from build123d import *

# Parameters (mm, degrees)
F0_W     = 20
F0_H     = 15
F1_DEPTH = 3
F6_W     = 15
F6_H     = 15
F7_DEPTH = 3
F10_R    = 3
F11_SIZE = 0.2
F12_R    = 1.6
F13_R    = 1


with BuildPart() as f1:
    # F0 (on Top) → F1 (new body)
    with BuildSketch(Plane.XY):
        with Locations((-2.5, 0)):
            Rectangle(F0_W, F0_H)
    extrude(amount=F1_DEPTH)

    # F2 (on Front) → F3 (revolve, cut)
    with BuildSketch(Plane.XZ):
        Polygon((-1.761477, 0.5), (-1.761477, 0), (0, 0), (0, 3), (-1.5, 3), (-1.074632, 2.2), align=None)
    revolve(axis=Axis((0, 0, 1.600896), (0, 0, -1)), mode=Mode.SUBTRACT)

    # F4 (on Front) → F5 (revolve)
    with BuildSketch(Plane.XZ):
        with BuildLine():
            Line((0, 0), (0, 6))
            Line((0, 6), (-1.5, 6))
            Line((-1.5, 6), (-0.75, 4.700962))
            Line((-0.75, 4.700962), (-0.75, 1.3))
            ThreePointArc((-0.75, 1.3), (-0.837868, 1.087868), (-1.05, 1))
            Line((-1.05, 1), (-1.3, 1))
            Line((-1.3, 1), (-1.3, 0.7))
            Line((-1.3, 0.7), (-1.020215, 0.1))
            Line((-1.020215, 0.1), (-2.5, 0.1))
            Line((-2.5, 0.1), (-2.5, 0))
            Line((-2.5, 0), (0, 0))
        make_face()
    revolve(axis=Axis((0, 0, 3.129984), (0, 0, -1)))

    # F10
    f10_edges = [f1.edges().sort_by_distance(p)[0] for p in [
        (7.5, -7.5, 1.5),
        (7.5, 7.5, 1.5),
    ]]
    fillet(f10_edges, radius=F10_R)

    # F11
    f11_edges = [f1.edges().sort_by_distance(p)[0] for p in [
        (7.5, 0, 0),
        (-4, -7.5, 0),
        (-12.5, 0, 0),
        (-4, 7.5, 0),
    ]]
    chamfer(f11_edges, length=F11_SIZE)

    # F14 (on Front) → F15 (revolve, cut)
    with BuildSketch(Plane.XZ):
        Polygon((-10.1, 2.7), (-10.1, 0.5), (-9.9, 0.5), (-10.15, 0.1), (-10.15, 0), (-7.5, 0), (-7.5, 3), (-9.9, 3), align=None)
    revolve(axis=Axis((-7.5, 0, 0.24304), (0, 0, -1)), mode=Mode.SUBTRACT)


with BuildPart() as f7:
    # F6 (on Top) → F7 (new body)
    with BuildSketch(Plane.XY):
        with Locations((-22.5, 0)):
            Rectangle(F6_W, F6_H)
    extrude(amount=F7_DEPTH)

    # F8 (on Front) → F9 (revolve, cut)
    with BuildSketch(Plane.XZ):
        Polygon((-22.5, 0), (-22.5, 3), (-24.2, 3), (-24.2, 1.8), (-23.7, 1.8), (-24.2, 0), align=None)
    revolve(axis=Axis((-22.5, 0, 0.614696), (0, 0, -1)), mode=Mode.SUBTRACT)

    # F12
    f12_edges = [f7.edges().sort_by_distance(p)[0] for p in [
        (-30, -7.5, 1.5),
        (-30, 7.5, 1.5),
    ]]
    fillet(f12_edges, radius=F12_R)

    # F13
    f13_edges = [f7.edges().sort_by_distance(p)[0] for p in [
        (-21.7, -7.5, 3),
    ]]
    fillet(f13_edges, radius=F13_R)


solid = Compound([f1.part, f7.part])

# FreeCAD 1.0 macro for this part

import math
import FreeCAD as App
import Part
import Sketcher

V = App.Vector
Q = App.Units.Quantity


def edges_at(feature, points):
    """Names of the edges that pass closest to the given points."""
    edges = feature.Shape.Edges
    near = lambda p: min(range(len(edges)), key=lambda i: edges[i].distToShape(Part.Vertex(*p))[0])
    return sorted({f"Edge{near(p) + 1}" for p in points})

doc = App.newDocument("Part")
params = doc.addObject("Spreadsheet::Sheet", "Params")
for row, (alias, value) in enumerate([
    ("sketch1_width", "20 mm"),
    ("sketch1_height", "15 mm"),
    ("pad1_length", "3 mm"),
    ("sketch2_height", "3 mm"),
    ("sketch2_width", "1.5 mm"),
    ("sketch2_height2", "0.5 mm"),
    ("groove_angle", "360 deg"),
    ("sketch3_radius", "0.3 mm"),
    ("sketch3_height", "6 mm"),
    ("sketch3_width", "1.5 mm"),
    ("sketch3_width2", "2.5 mm"),
    ("sketch3_height2", "0.3 mm"),
    ("revolution_angle", "360 deg"),
    ("fillet_radius", "3 mm"),
    ("chamfer_size", "0.2 mm"),
    ("sketch4_height", "3 mm"),
    ("sketch4_width", "0.2 mm"),
    ("sketch4_width2", "2.4 mm"),
    ("sketch4_height2", "2.2 mm"),
    ("sketch4_height3", "0.1 mm"),
    ("groove2_angle", "360 deg"),
    ("sketch5_width", "15 mm"),
    ("pad2_length", "3 mm"),
    ("sketch6_height", "3 mm"),
    ("sketch6_width", "1.7 mm"),
    ("sketch6_width2", "0.5 mm"),
    ("sketch6_height2", "1.2 mm"),
    ("groove3_angle", "360 deg"),
    ("fillet2_radius", "1.6 mm"),
    ("fillet3_radius", "1 mm"),
], start=1):
    params.set(f"A{row}", alias)
    params.set(f"B{row}", "=" + value)
    params.setAlias(f"B{row}", alias)

body = doc.addObject("PartDesign::Body", "Body")

sketch1 = body.newObject("Sketcher::SketchObject", "Sketch")
sketch1.AttachmentSupport = (doc.getObject("XY_Plane"), [""])
sketch1.MapMode = "FlatFace"
sketch1.addGeometry(Part.LineSegment(V(-12, 8, 0), V(-12, -8, 0)), False)
sketch1.addGeometry(Part.LineSegment(V(-12, -8, 0), V(8, -8, 0)), False)
sketch1.addGeometry(Part.LineSegment(V(8, -8, 0), V(8, 8, 0)), False)
sketch1.addGeometry(Part.LineSegment(V(8, 8, 0), V(-12, 8, 0)), False)
sketch1.addConstraint(Sketcher.Constraint("Coincident", 0, 2, 1, 1))
sketch1.addConstraint(Sketcher.Constraint("Coincident", 1, 2, 2, 1))
sketch1.addConstraint(Sketcher.Constraint("Coincident", 2, 2, 3, 1))
sketch1.addConstraint(Sketcher.Constraint("Coincident", 3, 2, 0, 1))
sketch1.addConstraint(Sketcher.Constraint("Vertical", 0))
sketch1.addConstraint(Sketcher.Constraint("Horizontal", 1))
sketch1.addConstraint(Sketcher.Constraint("Vertical", 2))
sketch1.addConstraint(Sketcher.Constraint("Horizontal", 3))
sketch1.addConstraint(Sketcher.Constraint("DistanceX", 1, 1, 1, 2, Q("20 mm")))
sketch1.addConstraint(Sketcher.Constraint("DistanceY", 0, 2, 0, 1, Q("15 mm")))
sketch1.addConstraint(Sketcher.Constraint("DistanceX", 0, 2, -1, 1, Q("12.5 mm")))
sketch1.addConstraint(Sketcher.Constraint("DistanceY", 0, 2, -1, 1, Q("7.5 mm")))
sketch1.setExpression("Constraints[8]", "Params.sketch1_width")
sketch1.setExpression("Constraints[9]", "Params.sketch1_height")
pad1 = body.newObject("PartDesign::Pad", "Pad")
pad1.Profile = sketch1
pad1.setExpression("Length", "Params.pad1_length")

sketch2 = body.newObject("Sketcher::SketchObject", "Sketch001")
sketch2.AttachmentSupport = (doc.getObject("XZ_Plane"), [""])
sketch2.MapMode = "FlatFace"
sketch2.addGeometry(Part.LineSegment(V(-1.8, 0.5, 0), V(-1.8, 0, 0)), False)
sketch2.addGeometry(Part.LineSegment(V(-1.8, 0, 0), V(0, 0, 0)), False)
sketch2.addGeometry(Part.LineSegment(V(0, 0, 0), V(0, 3, 0)), False)
sketch2.addGeometry(Part.LineSegment(V(0, 3, 0), V(-1.5, 3, 0)), False)
sketch2.addGeometry(Part.LineSegment(V(-1.5, 3, 0), V(-1.1, 2.2, 0)), False)
sketch2.addGeometry(Part.LineSegment(V(-1.1, 2.2, 0), V(-1.8, 0.5, 0)), False)
sketch2.addConstraint(Sketcher.Constraint("Coincident", 0, 2, 1, 1))
sketch2.addConstraint(Sketcher.Constraint("Coincident", 1, 2, 2, 1))
sketch2.addConstraint(Sketcher.Constraint("Coincident", 2, 2, 3, 1))
sketch2.addConstraint(Sketcher.Constraint("Coincident", 3, 2, 4, 1))
sketch2.addConstraint(Sketcher.Constraint("Coincident", 4, 2, 5, 1))
sketch2.addConstraint(Sketcher.Constraint("Coincident", 5, 2, 0, 1))
sketch2.addConstraint(Sketcher.Constraint("Vertical", 0))
sketch2.addConstraint(Sketcher.Constraint("Horizontal", 1))
sketch2.addConstraint(Sketcher.Constraint("Vertical", 2))
sketch2.addConstraint(Sketcher.Constraint("Horizontal", 3))
sketch2.addConstraint(Sketcher.Constraint("Coincident", 1, 2, -1, 1))
sketch2.addConstraint(Sketcher.Constraint("DistanceY", 2, 1, 2, 2, Q("3 mm")))
sketch2.addConstraint(Sketcher.Constraint("Angle", 5, Q("-112.000012 deg")))
sketch2.addConstraint(Sketcher.Constraint("DistanceX", 3, 2, 3, 1, Q("1.5 mm")))
sketch2.addConstraint(Sketcher.Constraint("DistanceY", 0, 2, 0, 1, Q("0.5 mm")))
sketch2.addConstraint(Sketcher.Constraint("DistanceY", -1, 1, 4, 2, Q("2.2 mm")))
sketch2.addConstraint(Sketcher.Constraint("DistanceX", 1, 1, 1, 2, Q("1.761477 mm")))
sketch2.setExpression("Constraints[11]", "Params.sketch2_height")
sketch2.setExpression("Constraints[13]", "Params.sketch2_width")
sketch2.setExpression("Constraints[14]", "Params.sketch2_height2")
groove = body.newObject("PartDesign::Groove", "Groove")
groove.Profile = sketch2
groove.ReferenceAxis = (sketch2, ["V_Axis"])
groove.setExpression("Angle", "Params.groove_angle")

sketch3 = body.newObject("Sketcher::SketchObject", "Sketch002")
sketch3.AttachmentSupport = (doc.getObject("XZ_Plane"), [""])
sketch3.MapMode = "FlatFace"
sketch3.addGeometry(Part.LineSegment(V(0, 0, 0), V(0, 6, 0)), False)
sketch3.addGeometry(Part.LineSegment(V(0, 6, 0), V(-1.5, 6, 0)), False)
sketch3.addGeometry(Part.LineSegment(V(-1.5, 6, 0), V(-0.75, 4.7, 0)), False)
sketch3.addGeometry(Part.LineSegment(V(-0.75, 4.7, 0), V(-0.75, 1.3, 0)), False)
sketch3.addGeometry(Part.ArcOfCircle(Part.Circle(V(-1.05, 1.3, 0), V(0, 0, 1), 0.3), math.radians(-90), math.radians(0)), False)
sketch3.addGeometry(Part.LineSegment(V(-1.05, 1, 0), V(-1.3, 1, 0)), False)
sketch3.addGeometry(Part.LineSegment(V(-1.3, 1, 0), V(-1.3, 0.7, 0)), False)
sketch3.addGeometry(Part.LineSegment(V(-1.3, 0.7, 0), V(-1.02, 0.1, 0)), False)
sketch3.addGeometry(Part.LineSegment(V(-1.02, 0.1, 0), V(-2.5, 0.1, 0)), False)
sketch3.addGeometry(Part.LineSegment(V(-2.5, 0.1, 0), V(-2.5, 0, 0)), False)
sketch3.addGeometry(Part.LineSegment(V(-2.5, 0, 0), V(0, 0, 0)), False)
sketch3.addConstraint(Sketcher.Constraint("Coincident", 0, 2, 1, 1))
sketch3.addConstraint(Sketcher.Constraint("Coincident", 1, 2, 2, 1))
sketch3.addConstraint(Sketcher.Constraint("Coincident", 2, 2, 3, 1))
sketch3.addConstraint(Sketcher.Constraint("Tangent", 3, 2, 4, 2))
sketch3.addConstraint(Sketcher.Constraint("Tangent", 4, 1, 5, 1))
sketch3.addConstraint(Sketcher.Constraint("Coincident", 5, 2, 6, 1))
sketch3.addConstraint(Sketcher.Constraint("Coincident", 6, 2, 7, 1))
sketch3.addConstraint(Sketcher.Constraint("Coincident", 7, 2, 8, 1))
sketch3.addConstraint(Sketcher.Constraint("Coincident", 8, 2, 9, 1))
sketch3.addConstraint(Sketcher.Constraint("Coincident", 9, 2, 10, 1))
sketch3.addConstraint(Sketcher.Constraint("Coincident", 10, 2, 0, 1))
sketch3.addConstraint(Sketcher.Constraint("Vertical", 0))
sketch3.addConstraint(Sketcher.Constraint("Horizontal", 1))
sketch3.addConstraint(Sketcher.Constraint("Vertical", 3))
sketch3.addConstraint(Sketcher.Constraint("Horizontal", 5))
sketch3.addConstraint(Sketcher.Constraint("Vertical", 6))
sketch3.addConstraint(Sketcher.Constraint("Horizontal", 8))
sketch3.addConstraint(Sketcher.Constraint("Vertical", 9))
sketch3.addConstraint(Sketcher.Constraint("Horizontal", 10))
sketch3.addConstraint(Sketcher.Constraint("Coincident", 10, 2, -1, 1))
sketch3.addConstraint(Sketcher.Constraint("Radius", 4, Q("0.3 mm")))
sketch3.addConstraint(Sketcher.Constraint("DistanceY", 0, 1, 0, 2, Q("6 mm")))
sketch3.addConstraint(Sketcher.Constraint("Angle", 2, Q("-59.999998 deg")))
sketch3.addConstraint(Sketcher.Constraint("DistanceX", 1, 2, 1, 1, Q("1.5 mm")))
sketch3.addConstraint(Sketcher.Constraint("DistanceX", 10, 1, 10, 2, Q("2.5 mm")))
sketch3.addConstraint(Sketcher.Constraint("DistanceY", 6, 2, 6, 1, Q("0.3 mm")))
sketch3.addConstraint(Sketcher.Constraint("DistanceY", 9, 2, 9, 1, Q("0.1 mm")))
sketch3.addConstraint(Sketcher.Constraint("DistanceY", -1, 1, 4, 1, Q("1 mm")))
sketch3.addConstraint(Sketcher.Constraint("Distance", 2, Q("1.5 mm")))
sketch3.addConstraint(Sketcher.Constraint("DistanceX", 5, 2, 5, 1, Q("0.25 mm")))
sketch3.addConstraint(Sketcher.Constraint("DistanceX", 8, 2, 8, 1, Q("1.479785 mm")))
sketch3.setExpression("Constraints[20]", "Params.sketch3_radius")
sketch3.setExpression("Constraints[21]", "Params.sketch3_height")
sketch3.setExpression("Constraints[23]", "Params.sketch3_width")
sketch3.setExpression("Constraints[24]", "Params.sketch3_width2")
sketch3.setExpression("Constraints[25]", "Params.sketch3_height2")
revolution = body.newObject("PartDesign::Revolution", "Revolution")
revolution.Profile = sketch3
revolution.ReferenceAxis = (sketch3, ["V_Axis"])
revolution.setExpression("Angle", "Params.revolution_angle")
doc.recompute()

fillet = body.newObject("PartDesign::Fillet", "Fillet")
fillet.Base = (revolution, edges_at(revolution, [(7.5, -7.5, 1.5), (7.5, 7.5, 1.5)]))
fillet.setExpression("Radius", "Params.fillet_radius")
doc.recompute()

chamfer = body.newObject("PartDesign::Chamfer", "Chamfer")
chamfer.Base = (fillet, edges_at(fillet, [
    (7.5, 0, 0),
    (-4, -7.5, 0),
    (-12.5, 0, 0),
    (-4, 7.5, 0),
]))
chamfer.setExpression("Size", "Params.chamfer_size")

sketch4 = body.newObject("Sketcher::SketchObject", "Sketch003")
sketch4.AttachmentSupport = (doc.getObject("XZ_Plane"), [""])
sketch4.MapMode = "FlatFace"
sketch4.addGeometry(Part.LineSegment(V(-10.1, 2.7, 0), V(-10.1, 0.5, 0)), False)
sketch4.addGeometry(Part.LineSegment(V(-10.1, 0.5, 0), V(-9.9, 0.5, 0)), False)
sketch4.addGeometry(Part.LineSegment(V(-9.9, 0.5, 0), V(-10.15, 0.1, 0)), False)
sketch4.addGeometry(Part.LineSegment(V(-10.15, 0.1, 0), V(-10.15, 0, 0)), False)
sketch4.addGeometry(Part.LineSegment(V(-10.15, 0, 0), V(-7.5, 0, 0)), False)
sketch4.addGeometry(Part.LineSegment(V(-7.5, 0, 0), V(-7.5, 3, 0)), False)
sketch4.addGeometry(Part.LineSegment(V(-7.5, 3, 0), V(-9.9, 3, 0)), False)
sketch4.addGeometry(Part.LineSegment(V(-9.9, 3, 0), V(-10.1, 2.7, 0)), False)
sketch4.addGeometry(Part.LineSegment(V(-7.5, 3, 0), V(-7.5, 0, 0)), True)
sketch4.addConstraint(Sketcher.Constraint("Coincident", 0, 2, 1, 1))
sketch4.addConstraint(Sketcher.Constraint("Coincident", 1, 2, 2, 1))
sketch4.addConstraint(Sketcher.Constraint("Coincident", 2, 2, 3, 1))
sketch4.addConstraint(Sketcher.Constraint("Coincident", 3, 2, 4, 1))
sketch4.addConstraint(Sketcher.Constraint("Coincident", 4, 2, 5, 1))
sketch4.addConstraint(Sketcher.Constraint("Coincident", 5, 2, 6, 1))
sketch4.addConstraint(Sketcher.Constraint("Coincident", 6, 2, 7, 1))
sketch4.addConstraint(Sketcher.Constraint("Coincident", 7, 2, 0, 1))
sketch4.addConstraint(Sketcher.Constraint("Vertical", 0))
sketch4.addConstraint(Sketcher.Constraint("Horizontal", 1))
sketch4.addConstraint(Sketcher.Constraint("Vertical", 3))
sketch4.addConstraint(Sketcher.Constraint("Horizontal", 4))
sketch4.addConstraint(Sketcher.Constraint("Vertical", 5))
sketch4.addConstraint(Sketcher.Constraint("Horizontal", 6))
sketch4.addConstraint(Sketcher.Constraint("Vertical", 8))
sketch4.addConstraint(Sketcher.Constraint("Coincident", 8, 1, 5, 2))
sketch4.addConstraint(Sketcher.Constraint("PointOnObject", 3, 2, -1))
sketch4.addConstraint(Sketcher.Constraint("PointOnObject", 8, 2, -1))
sketch4.addConstraint(Sketcher.Constraint("Vertical", 1, 2, 6, 2))
sketch4.addConstraint(Sketcher.Constraint("DistanceY", 5, 1, 5, 2, Q("3 mm")))
sketch4.addConstraint(Sketcher.Constraint("DistanceX", 1, 1, 1, 2, Q("0.2 mm")))
sketch4.addConstraint(Sketcher.Constraint("DistanceX", 6, 2, 6, 1, Q("2.4 mm")))
sketch4.addConstraint(Sketcher.Constraint("DistanceY", 0, 2, 0, 1, Q("2.2 mm")))
sketch4.addConstraint(Sketcher.Constraint("DistanceY", 3, 2, 3, 1, Q("0.1 mm")))
sketch4.addConstraint(Sketcher.Constraint("DistanceX", 4, 1, 4, 2, Q("2.65 mm")))
sketch4.addConstraint(Sketcher.Constraint("DistanceX", 0, 2, -1, 1, Q("10.1 mm")))
sketch4.addConstraint(Sketcher.Constraint("DistanceY", -1, 1, 0, 2, Q("0.5 mm")))
sketch4.setExpression("Constraints[19]", "Params.sketch4_height")
sketch4.setExpression("Constraints[20]", "Params.sketch4_width")
sketch4.setExpression("Constraints[21]", "Params.sketch4_width2")
sketch4.setExpression("Constraints[22]", "Params.sketch4_height2")
sketch4.setExpression("Constraints[23]", "Params.sketch4_height3")
groove2 = body.newObject("PartDesign::Groove", "Groove001")
groove2.Profile = sketch4
groove2.ReferenceAxis = (sketch4, ["Axis0"])
groove2.setExpression("Angle", "Params.groove2_angle")
body2 = doc.addObject("PartDesign::Body", "Body001")

sketch5 = body2.newObject("Sketcher::SketchObject", "Sketch004")
sketch5.AttachmentSupport = (doc.getObject("XY_Plane001"), [""])
sketch5.MapMode = "FlatFace"
sketch5.addGeometry(Part.LineSegment(V(-30, 8, 0), V(-30, -8, 0)), False)
sketch5.addGeometry(Part.LineSegment(V(-30, -8, 0), V(-15, -8, 0)), False)
sketch5.addGeometry(Part.LineSegment(V(-15, -8, 0), V(-15, 8, 0)), False)
sketch5.addGeometry(Part.LineSegment(V(-15, 8, 0), V(-30, 8, 0)), False)
sketch5.addConstraint(Sketcher.Constraint("Coincident", 0, 2, 1, 1))
sketch5.addConstraint(Sketcher.Constraint("Coincident", 1, 2, 2, 1))
sketch5.addConstraint(Sketcher.Constraint("Coincident", 2, 2, 3, 1))
sketch5.addConstraint(Sketcher.Constraint("Coincident", 3, 2, 0, 1))
sketch5.addConstraint(Sketcher.Constraint("Vertical", 0))
sketch5.addConstraint(Sketcher.Constraint("Horizontal", 1))
sketch5.addConstraint(Sketcher.Constraint("Vertical", 2))
sketch5.addConstraint(Sketcher.Constraint("Horizontal", 3))
sketch5.addConstraint(Sketcher.Constraint("Equal", 3, 0))
sketch5.addConstraint(Sketcher.Constraint("DistanceX", 1, 1, 1, 2, Q("15 mm")))
sketch5.addConstraint(Sketcher.Constraint("DistanceX", 0, 2, -1, 1, Q("30 mm")))
sketch5.addConstraint(Sketcher.Constraint("DistanceY", 0, 2, -1, 1, Q("7.5 mm")))
sketch5.setExpression("Constraints[9]", "Params.sketch5_width")
pad2 = body2.newObject("PartDesign::Pad", "Pad001")
pad2.Profile = sketch5
pad2.setExpression("Length", "Params.pad2_length")

sketch6 = body2.newObject("Sketcher::SketchObject", "Sketch005")
sketch6.AttachmentSupport = (doc.getObject("XZ_Plane001"), [""])
sketch6.MapMode = "FlatFace"
sketch6.addGeometry(Part.LineSegment(V(-22.5, 0, 0), V(-22.5, 3, 0)), False)
sketch6.addGeometry(Part.LineSegment(V(-22.5, 3, 0), V(-24.2, 3, 0)), False)
sketch6.addGeometry(Part.LineSegment(V(-24.2, 3, 0), V(-24.2, 1.8, 0)), False)
sketch6.addGeometry(Part.LineSegment(V(-24.2, 1.8, 0), V(-23.7, 1.8, 0)), False)
sketch6.addGeometry(Part.LineSegment(V(-23.7, 1.8, 0), V(-24.2, 0, 0)), False)
sketch6.addGeometry(Part.LineSegment(V(-24.2, 0, 0), V(-22.5, 0, 0)), False)
sketch6.addGeometry(Part.LineSegment(V(-22.5, 3, 0), V(-22.5, 0, 0)), True)
sketch6.addConstraint(Sketcher.Constraint("Coincident", 0, 2, 1, 1))
sketch6.addConstraint(Sketcher.Constraint("Coincident", 1, 2, 2, 1))
sketch6.addConstraint(Sketcher.Constraint("Coincident", 2, 2, 3, 1))
sketch6.addConstraint(Sketcher.Constraint("Coincident", 3, 2, 4, 1))
sketch6.addConstraint(Sketcher.Constraint("Coincident", 4, 2, 5, 1))
sketch6.addConstraint(Sketcher.Constraint("Coincident", 5, 2, 0, 1))
sketch6.addConstraint(Sketcher.Constraint("Vertical", 0))
sketch6.addConstraint(Sketcher.Constraint("Horizontal", 1))
sketch6.addConstraint(Sketcher.Constraint("Vertical", 2))
sketch6.addConstraint(Sketcher.Constraint("Horizontal", 3))
sketch6.addConstraint(Sketcher.Constraint("Horizontal", 5))
sketch6.addConstraint(Sketcher.Constraint("Vertical", 6))
sketch6.addConstraint(Sketcher.Constraint("Coincident", 6, 1, 0, 2))
sketch6.addConstraint(Sketcher.Constraint("PointOnObject", 4, 2, -1))
sketch6.addConstraint(Sketcher.Constraint("PointOnObject", 6, 2, -1))
sketch6.addConstraint(Sketcher.Constraint("Vertical", 2, 2, 4, 2))
sketch6.addConstraint(Sketcher.Constraint("DistanceY", 0, 1, 0, 2, Q("3 mm")))
sketch6.addConstraint(Sketcher.Constraint("DistanceX", 1, 2, 1, 1, Q("1.7 mm")))
sketch6.addConstraint(Sketcher.Constraint("DistanceX", 3, 1, 3, 2, Q("0.5 mm")))
sketch6.addConstraint(Sketcher.Constraint("DistanceY", 2, 2, 2, 1, Q("1.2 mm")))
sketch6.addConstraint(Sketcher.Constraint("DistanceX", 0, 2, -1, 1, Q("22.5 mm")))
sketch6.setExpression("Constraints[16]", "Params.sketch6_height")
sketch6.setExpression("Constraints[17]", "Params.sketch6_width")
sketch6.setExpression("Constraints[18]", "Params.sketch6_width2")
sketch6.setExpression("Constraints[19]", "Params.sketch6_height2")
groove3 = body2.newObject("PartDesign::Groove", "Groove002")
groove3.Profile = sketch6
groove3.ReferenceAxis = (sketch6, ["Axis0"])
groove3.setExpression("Angle", "Params.groove3_angle")
doc.recompute()

fillet2 = body2.newObject("PartDesign::Fillet", "Fillet001")
fillet2.Base = (groove3, edges_at(groove3, [(-30, -7.5, 1.5), (-30, 7.5, 1.5)]))
fillet2.setExpression("Radius", "Params.fillet2_radius")
doc.recompute()

fillet3 = body2.newObject("PartDesign::Fillet", "Fillet002")
fillet3.Base = (fillet2, edges_at(fillet2, [(-21.7, -7.5, 3)]))
fillet3.setExpression("Radius", "Params.fillet3_radius")

doc.recompute()
